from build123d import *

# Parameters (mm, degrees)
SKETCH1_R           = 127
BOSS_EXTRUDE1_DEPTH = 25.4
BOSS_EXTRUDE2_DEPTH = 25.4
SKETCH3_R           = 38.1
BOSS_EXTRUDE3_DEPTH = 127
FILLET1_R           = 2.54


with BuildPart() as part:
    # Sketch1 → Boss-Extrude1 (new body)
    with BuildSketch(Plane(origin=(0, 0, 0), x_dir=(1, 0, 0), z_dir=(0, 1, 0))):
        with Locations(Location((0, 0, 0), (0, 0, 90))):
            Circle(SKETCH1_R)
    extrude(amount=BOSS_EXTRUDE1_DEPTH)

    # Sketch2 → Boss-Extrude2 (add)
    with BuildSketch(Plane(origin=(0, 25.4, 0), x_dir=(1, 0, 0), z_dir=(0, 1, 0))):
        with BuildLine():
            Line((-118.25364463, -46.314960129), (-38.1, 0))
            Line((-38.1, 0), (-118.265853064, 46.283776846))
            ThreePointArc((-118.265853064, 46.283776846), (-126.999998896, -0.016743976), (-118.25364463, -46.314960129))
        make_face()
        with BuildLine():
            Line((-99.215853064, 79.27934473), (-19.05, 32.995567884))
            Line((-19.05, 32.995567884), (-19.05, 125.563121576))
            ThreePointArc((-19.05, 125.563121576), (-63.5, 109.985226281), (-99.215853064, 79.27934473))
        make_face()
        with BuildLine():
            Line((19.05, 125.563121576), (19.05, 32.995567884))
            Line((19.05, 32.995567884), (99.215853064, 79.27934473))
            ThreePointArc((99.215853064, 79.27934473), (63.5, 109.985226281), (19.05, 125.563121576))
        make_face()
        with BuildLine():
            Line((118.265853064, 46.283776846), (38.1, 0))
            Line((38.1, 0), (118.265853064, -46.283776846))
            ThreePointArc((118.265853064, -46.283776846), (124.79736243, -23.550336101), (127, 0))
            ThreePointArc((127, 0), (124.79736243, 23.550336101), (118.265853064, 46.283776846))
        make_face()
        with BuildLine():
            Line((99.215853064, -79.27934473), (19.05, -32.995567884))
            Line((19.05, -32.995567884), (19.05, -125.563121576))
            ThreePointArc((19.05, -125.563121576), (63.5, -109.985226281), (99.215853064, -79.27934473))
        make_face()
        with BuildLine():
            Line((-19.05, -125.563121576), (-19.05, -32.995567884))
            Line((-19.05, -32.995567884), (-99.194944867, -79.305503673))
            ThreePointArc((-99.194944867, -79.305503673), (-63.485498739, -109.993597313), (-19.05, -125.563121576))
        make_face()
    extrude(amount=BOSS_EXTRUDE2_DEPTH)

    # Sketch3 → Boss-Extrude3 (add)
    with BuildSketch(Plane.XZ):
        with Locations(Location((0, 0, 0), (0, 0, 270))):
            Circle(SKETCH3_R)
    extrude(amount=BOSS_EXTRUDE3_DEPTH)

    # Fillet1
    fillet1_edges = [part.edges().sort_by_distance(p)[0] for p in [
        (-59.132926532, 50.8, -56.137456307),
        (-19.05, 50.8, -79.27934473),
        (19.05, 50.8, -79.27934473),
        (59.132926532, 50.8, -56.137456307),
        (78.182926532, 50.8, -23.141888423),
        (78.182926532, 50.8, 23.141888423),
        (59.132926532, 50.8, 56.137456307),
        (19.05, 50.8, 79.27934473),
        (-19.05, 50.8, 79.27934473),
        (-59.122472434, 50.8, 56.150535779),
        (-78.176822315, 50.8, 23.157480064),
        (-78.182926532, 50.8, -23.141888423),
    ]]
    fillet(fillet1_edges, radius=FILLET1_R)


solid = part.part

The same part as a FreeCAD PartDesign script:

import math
import FreeCAD as App
import Part
import Sketcher
Q = App.Units.Quantity


def edges_at(feature, points):
    """Names of the edges that pass closest to the given points."""
    edges = feature.Shape.Edges
    near = lambda p: min(range(len(edges)), key=lambda i: edges[i].distToShape(Part.Vertex(*p))[0])
    return sorted({f"Edge{near(p) + 1}" for p in points})

doc = App.newDocument("Part")
body = doc.addObject("PartDesign::Body", "Body")

# Sketch on XZ plane
sketch1 = body.newObject("Sketcher::SketchObject", "Sketch")
sketch1.AttachmentSupport = (doc.getObject("XZ_Plane"), [""])
sketch1.MapMode = "FlatFace"
sketch1.addGeometry(Part.Circle(App.Vector(0, 0, 0), App.Vector(0, 0, 1), 127), False)
sketch1.addConstraint([
    Sketcher.Constraint("Coincident", 0, 3, -1, 1),
    Sketcher.Constraint("Diameter", 0, Q("10 in")),
])
pad1 = body.newObject("PartDesign::Pad", "Pad")
pad1.Profile = sketch1
pad1.Length = Q("1 in")
pad1.Reversed = True

# Sketch on XZ plane
sketch2 = body.newObject("Sketcher::SketchObject", "Sketch001")
sketch2.AttachmentSupport = (doc.getObject("XZ_Plane"), [""])
sketch2.MapMode = "FlatFace"
sketch2.AttachmentOffset = App.Placement(App.Vector(0, 0, -1 * 25.4), App.Rotation())
sketch2.addGeometry([
    Part.LineSegment(App.Vector(-118, 46, 0), App.Vector(-38, 0, 0)),  # 0
    Part.LineSegment(App.Vector(-38, 0, 0), App.Vector(-118, -46, 0)),  # 1
    Part.ArcOfCircle(Part.Circle(App.Vector(0, 0, 0), App.Vector(0, 0, 1), 127), math.radians(159), math.radians(201)),  # 2
    Part.LineSegment(App.Vector(-99, -79, 0), App.Vector(-19, -33, 0)),  # 3
    Part.LineSegment(App.Vector(-19, -33, 0), App.Vector(-19, -126, 0)),  # 4
    Part.ArcOfCircle(Part.Circle(App.Vector(0, 0, 0), App.Vector(0, 0, 1), 127), math.radians(-141), math.radians(-99)),  # 5
    Part.LineSegment(App.Vector(19, -126, 0), App.Vector(19, -33, 0)),  # 6
    Part.LineSegment(App.Vector(19, -33, 0), App.Vector(99, -79, 0)),  # 7
    Part.ArcOfCircle(Part.Circle(App.Vector(0, 0, 0), App.Vector(0, 0, 1), 127), math.radians(-81), math.radians(-39)),  # 8
    Part.LineSegment(App.Vector(118, -46, 0), App.Vector(38, 0, 0)),  # 9
    Part.LineSegment(App.Vector(38, 0, 0), App.Vector(118, 46, 0)),  # 10
    Part.ArcOfCircle(Part.Circle(App.Vector(0, 0, 0), App.Vector(0, 0, 1), 127), math.radians(0), math.radians(21)),  # 11
    Part.ArcOfCircle(Part.Circle(App.Vector(0, 0, 0), App.Vector(0, 0, 1), 127), math.radians(-21), math.radians(0)),  # 12
    Part.LineSegment(App.Vector(99, 79, 0), App.Vector(19, 33, 0)),  # 13
    Part.LineSegment(App.Vector(19, 33, 0), App.Vector(19, 126, 0)),  # 14
    Part.ArcOfCircle(Part.Circle(App.Vector(0, 0, 0), App.Vector(0, 0, 1), 127), math.radians(39), math.radians(81)),  # 15
    Part.LineSegment(App.Vector(-19, 126, 0), App.Vector(-19, 33, 0)),  # 16
    Part.LineSegment(App.Vector(-19, 33, 0), App.Vector(-99, 79, 0)),  # 17
    Part.ArcOfCircle(Part.Circle(App.Vector(0, 0, 0), App.Vector(0, 0, 1), 127), math.radians(99), math.radians(141)),  # 18
], False)
sketch2.addConstraint([
    Sketcher.Constraint("Coincident", 0, 2, 1, 1),
    Sketcher.Constraint("Coincident", 1, 2, 2, 2),
    Sketcher.Constraint("Coincident", 2, 1, 0, 1),
    Sketcher.Constraint("Coincident", 3, 2, 4, 1),
    Sketcher.Constraint("Coincident", 4, 2, 5, 2),
    Sketcher.Constraint("Coincident", 5, 1, 3, 1),
    Sketcher.Constraint("Coincident", 6, 2, 7, 1),
    Sketcher.Constraint("Coincident", 7, 2, 8, 2),
    Sketcher.Constraint("Coincident", 8, 1, 6, 1),
    Sketcher.Constraint("Coincident", 9, 2, 10, 1),
    Sketcher.Constraint("Coincident", 10, 2, 11, 2),
    Sketcher.Constraint("Tangent", 11, 1, 12, 2),
    Sketcher.Constraint("Coincident", 12, 1, 9, 1),
    Sketcher.Constraint("Coincident", 13, 2, 14, 1),
    Sketcher.Constraint("Coincident", 14, 2, 15, 2),
    Sketcher.Constraint("Coincident", 15, 1, 13, 1),
    Sketcher.Constraint("Coincident", 16, 2, 17, 1),
    Sketcher.Constraint("Coincident", 17, 2, 18, 2),
    Sketcher.Constraint("Coincident", 18, 1, 16, 1),
    Sketcher.Constraint("Vertical", 4),
    Sketcher.Constraint("Vertical", 6),
    Sketcher.Constraint("Vertical", 14),
    Sketcher.Constraint("Vertical", 16),
    Sketcher.Constraint("Coincident", 2, 3, -1, 1),
    Sketcher.Constraint("Coincident", 5, 3, -1, 1),
    Sketcher.Constraint("Coincident", 8, 3, -1, 1),
    Sketcher.Constraint("Coincident", 11, 3, -1, 1),
    Sketcher.Constraint("Coincident", 15, 3, -1, 1),
    Sketcher.Constraint("Coincident", 18, 3, -1, 1),
    Sketcher.Constraint("Equal", 2, 5),
    Sketcher.Constraint("Equal", 5, 8),
    Sketcher.Constraint("Equal", 8, 11),
    Sketcher.Constraint("Equal", 11, 12),
    Sketcher.Constraint("Equal", 12, 15),
    Sketcher.Constraint("Equal", 15, 18),
    Sketcher.Constraint("Symmetric", 0, 2, 9, 2, -1, 1),
    Sketcher.Constraint("Symmetric", 3, 2, 13, 2, -1, 1),
    Sketcher.Constraint("Symmetric", 6, 2, 16, 2, -1, 1),
    Sketcher.Constraint("Symmetric", 3, 2, 6, 2, -2),
    Sketcher.Constraint("PointOnObject", 0, 2, -1),
    Sketcher.Constraint("PointOnObject", 11, 1, -1),
    Sketcher.Constraint("Parallel", 1, 3),
    Sketcher.Constraint("Parallel", 7, 9),
    Sketcher.Constraint("Parallel", 3, 10),
    Sketcher.Constraint("Parallel", 10, 13),
    Sketcher.Constraint("Parallel", 0, 17),
    Sketcher.Constraint("Horizontal", 5, 1, 7, 2),
    Sketcher.Constraint("Equal", 1, 3),
    Sketcher.Constraint("Radius", 2, Q("5 in")),
    Sketcher.Constraint("Angle", 1, Q("-150 deg")),
    Sketcher.Constraint("DistanceX", 0, 2, -1, 1, Q("1.5 in")),
    Sketcher.Constraint("DistanceX", 3, 2, 6, 2, Q("1.5 in")),
    Sketcher.Constraint("DistanceX", 2, 1, 17, 2, 19.0587),
])
pad2 = body.newObject("PartDesign::Pad", "Pad001")
pad2.Profile = sketch2
pad2.Length = Q("1 in")
pad2.Reversed = True

# Sketch on XZ plane
sketch3 = body.newObject("Sketcher::SketchObject", "Sketch002")
sketch3.AttachmentSupport = (doc.getObject("XZ_Plane"), [""])
sketch3.MapMode = "FlatFace"
sketch3.addGeometry(Part.Circle(App.Vector(0, 0, 0), App.Vector(0, 0, 1), 38), False)
sketch3.addConstraint([
    Sketcher.Constraint("Coincident", 0, 3, -1, 1),
    Sketcher.Constraint("Diameter", 0, Q("3 in")),
])
pad3 = body.newObject("PartDesign::Pad", "Pad002")
pad3.Profile = sketch3
pad3.Length = Q("5 in")
doc.recompute()

fillet = body.newObject("PartDesign::Fillet", "Fillet")
fillet.Base = (pad3, edges_at(pad3, [
    (-59.133, 50.8, -56.137),
    (-19.05, 50.8, -79.279),
    (19.05, 50.8, -79.279),
    (59.133, 50.8, -56.137),
    (78.183, 50.8, -23.142),
    (78.183, 50.8, 23.142),
    (59.133, 50.8, 56.137),
    (19.05, 50.8, 79.279),
    (-19.05, 50.8, 79.279),
    (-59.122, 50.8, 56.151),
    (-78.177, 50.8, 23.157),
    (-78.183, 50.8, -23.142),
]))
fillet.Radius = Q("0.1 in")

doc.recompute()
